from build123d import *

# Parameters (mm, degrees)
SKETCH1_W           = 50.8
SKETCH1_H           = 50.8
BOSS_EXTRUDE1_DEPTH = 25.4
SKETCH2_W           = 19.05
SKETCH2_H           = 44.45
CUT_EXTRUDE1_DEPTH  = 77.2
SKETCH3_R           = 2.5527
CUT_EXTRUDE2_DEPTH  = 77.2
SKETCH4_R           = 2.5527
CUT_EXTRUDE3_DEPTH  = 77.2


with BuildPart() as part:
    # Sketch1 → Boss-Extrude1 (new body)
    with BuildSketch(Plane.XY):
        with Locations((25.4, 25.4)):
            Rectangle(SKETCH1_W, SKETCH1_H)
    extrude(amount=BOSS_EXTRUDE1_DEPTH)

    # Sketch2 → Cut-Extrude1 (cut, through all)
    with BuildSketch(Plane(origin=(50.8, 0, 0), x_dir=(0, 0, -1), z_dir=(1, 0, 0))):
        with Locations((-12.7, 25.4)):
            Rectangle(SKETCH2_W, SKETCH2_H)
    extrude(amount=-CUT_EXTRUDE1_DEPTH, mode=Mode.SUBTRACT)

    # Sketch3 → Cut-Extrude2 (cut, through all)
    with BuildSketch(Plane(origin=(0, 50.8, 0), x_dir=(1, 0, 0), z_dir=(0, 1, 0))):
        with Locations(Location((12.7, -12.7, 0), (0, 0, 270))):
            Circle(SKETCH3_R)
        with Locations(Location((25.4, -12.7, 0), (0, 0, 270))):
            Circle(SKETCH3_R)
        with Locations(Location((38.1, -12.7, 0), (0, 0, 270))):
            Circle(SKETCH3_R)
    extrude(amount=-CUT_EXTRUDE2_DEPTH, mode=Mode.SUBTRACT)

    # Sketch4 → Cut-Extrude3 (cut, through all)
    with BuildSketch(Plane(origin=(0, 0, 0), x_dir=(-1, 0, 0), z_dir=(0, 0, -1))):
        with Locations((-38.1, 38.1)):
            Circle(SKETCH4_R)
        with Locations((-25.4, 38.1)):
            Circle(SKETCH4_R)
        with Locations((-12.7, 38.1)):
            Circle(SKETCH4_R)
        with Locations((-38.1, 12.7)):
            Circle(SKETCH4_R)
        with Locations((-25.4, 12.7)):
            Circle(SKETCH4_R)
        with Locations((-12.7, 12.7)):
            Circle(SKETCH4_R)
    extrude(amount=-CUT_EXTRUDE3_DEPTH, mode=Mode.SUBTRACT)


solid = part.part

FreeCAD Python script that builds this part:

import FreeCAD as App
import Part
import Sketcher

V = App.Vector
Q = App.Units.Quantity

doc = App.newDocument("Part")
body = doc.addObject("PartDesign::Body", "Body")

# Sketch on XY plane
sketch1 = body.newObject("Sketcher::SketchObject", "Sketch")
sketch1.AttachmentSupport = (doc.getObject("XY_Plane"), [""])
sketch1.MapMode = "FlatFace"
sketch1.addGeometry([
    Part.LineSegment(V(0, 51, 0), V(0, 0, 0)),
    Part.LineSegment(V(0, 0, 0), V(51, 0, 0)),
    Part.LineSegment(V(51, 0, 0), V(51, 51, 0)),
    Part.LineSegment(V(51, 51, 0), V(0, 51, 0)),
], False)
sketch1.addConstraint([
    Sketcher.Constraint("Coincident", 0, 2, 1, 1),
    Sketcher.Constraint("Coincident", 1, 2, 2, 1),
    Sketcher.Constraint("Coincident", 2, 2, 3, 1),
    Sketcher.Constraint("Coincident", 3, 2, 0, 1),
    Sketcher.Constraint("Vertical", 0),
    Sketcher.Constraint("Horizontal", 1),
    Sketcher.Constraint("Vertical", 2),
    Sketcher.Constraint("Horizontal", 3),
    Sketcher.Constraint("Coincident", 0, 2, -1, 1),
    Sketcher.Constraint("Equal", 3, 0),
    Sketcher.Constraint("DistanceX", 1, 1, 1, 2, Q("2 in")),
])
pad1 = body.newObject("PartDesign::Pad", "Pad")
pad1.Profile = sketch1
pad1.Length = Q("1 in")

# Sketch on YZ plane
sketch2 = body.newObject("Sketcher::SketchObject", "Sketch001")
sketch2.AttachmentSupport = (doc.getObject("YZ_Plane"), [""])
sketch2.MapMode = "FlatFace"
sketch2.AttachmentOffset = App.Placement(V(0, 0, 2 * 25.4), App.Rotation())
sketch2.addGeometry([
    Part.LineSegment(V(48, 22, 0), V(3, 22, 0)),
    Part.LineSegment(V(3, 22, 0), V(3, 3, 0)),
    Part.LineSegment(V(3, 3, 0), V(48, 3, 0)),
    Part.LineSegment(V(48, 3, 0), V(48, 22, 0)),
], False)
sketch2.addConstraint([
    Sketcher.Constraint("Coincident", 0, 2, 1, 1),
    Sketcher.Constraint("Coincident", 1, 2, 2, 1),
    Sketcher.Constraint("Coincident", 2, 2, 3, 1),
    Sketcher.Constraint("Coincident", 3, 2, 0, 1),
    Sketcher.Constraint("Horizontal", 0),
    Sketcher.Constraint("Vertical", 1),
    Sketcher.Constraint("Horizontal", 2),
    Sketcher.Constraint("Vertical", 3),
    Sketcher.Constraint("DistanceX", 0, 2, 0, 1, Q("1.75 in")),
    Sketcher.Constraint("DistanceY", 1, 2, 1, 1, Q("0.75 in")),
    Sketcher.Constraint("DistanceX", -1, 1, 0, 2, Q("0.125 in")),
    Sketcher.Constraint("DistanceY", -1, 1, 0, 2, Q("0.875 in")),
])
pocket1 = body.newObject("PartDesign::Pocket", "Pocket")
pocket1.Profile = sketch2
pocket1.Type = "ThroughAll"

# Sketch on XZ plane
sketch3 = body.newObject("Sketcher::SketchObject", "Sketch002")
sketch3.AttachmentSupport = (doc.getObject("XZ_Plane"), [""])
sketch3.MapMode = "FlatFace"
sketch3.AttachmentOffset = App.Placement(V(0, 0, -2 * 25.4), App.Rotation())
sketch3.addGeometry([
    Part.Circle(V(12.7, 12.7, 0), V(0, 0, 1), 2.6),
    Part.Circle(V(25.4, 12.7, 0), V(0, 0, 1), 2.6),
    Part.Circle(V(38.1, 12.7, 0), V(0, 0, 1), 2.6),
], False)
sketch3.addConstraint([
    Sketcher.Constraint("Equal", 0, 1),
    Sketcher.Constraint("Equal", 1, 2),
    Sketcher.Constraint("Horizontal", 0, 3, 1, 3),
    Sketcher.Constraint("Horizontal", 1, 3, 2, 3),
    Sketcher.Constraint("Diameter", 0, Q("0.201 in")),
    Sketcher.Constraint("DistanceX", -1, 1, 1, 3, Q("1 in")),
    Sketcher.Constraint("DistanceX", 0, 3, 2, 3, Q("1 in")),
    Sketcher.Constraint("DistanceX", -1, 1, 0, 3, Q("0.5 in")),
    Sketcher.Constraint("DistanceY", -1, 1, 0, 3, Q("0.5 in")),
])
pocket2 = body.newObject("PartDesign::Pocket", "Pocket001")
pocket2.Profile = sketch3
pocket2.Type = "ThroughAll"
pocket2.Reversed = True

# Sketch on XY plane
sketch4 = body.newObject("Sketcher::SketchObject", "Sketch003")
sketch4.AttachmentSupport = (doc.getObject("XY_Plane"), [""])
sketch4.MapMode = "FlatFace"
sketch4.addGeometry([
    Part.Circle(V(38.1, 38.1, 0), V(0, 0, 1), 2.6),  # 0
    Part.Circle(V(25.4, 38.1, 0), V(0, 0, 1), 2.6),  # 1
    Part.Circle(V(12.7, 38.1, 0), V(0, 0, 1), 2.6),  # 2
    Part.Circle(V(38.1, 12.7, 0), V(0, 0, 1), 2.6),  # 3
    Part.Circle(V(25.4, 12.7, 0), V(0, 0, 1), 2.6),  # 4
    Part.Circle(V(12.7, 12.7, 0), V(0, 0, 1), 2.6),  # 5
], False)
sketch4.addConstraint([
    Sketcher.Constraint("Equal", 0, 1),
    Sketcher.Constraint("Equal", 1, 2),
    Sketcher.Constraint("Equal", 2, 3),
    Sketcher.Constraint("Equal", 3, 4),
    Sketcher.Constraint("Equal", 4, 5),
    Sketcher.Constraint("Horizontal", 0, 3, 1, 3),
    Sketcher.Constraint("Horizontal", 1, 3, 2, 3),
    Sketcher.Constraint("Horizontal", 3, 3, 4, 3),
    Sketcher.Constraint("Horizontal", 4, 3, 5, 3),
    Sketcher.Constraint("Vertical", 0, 3, 3, 3),
    Sketcher.Constraint("Vertical", 1, 3, 4, 3),
    Sketcher.Constraint("Vertical", 2, 3, 5, 3),
    Sketcher.Constraint("Diameter", 0, Q("0.201 in")),
    Sketcher.Constraint("DistanceX", -1, 1, 1, 3, Q("1 in")),
    Sketcher.Constraint("DistanceX", 2, 3, 0, 3, Q("1 in")),
    Sketcher.Constraint("DistanceY", 3, 3, 0, 3, Q("1 in")),
    Sketcher.Constraint("DistanceX", -1, 1, 0, 3, Q("1.5 in")),
    Sketcher.Constraint("DistanceY", -1, 1, 0, 3, Q("1.5 in")),
])
pocket3 = body.newObject("PartDesign::Pocket", "Pocket002")
pocket3.Profile = sketch4
pocket3.Type = "ThroughAll"
pocket3.Reversed = True

doc.recompute()
